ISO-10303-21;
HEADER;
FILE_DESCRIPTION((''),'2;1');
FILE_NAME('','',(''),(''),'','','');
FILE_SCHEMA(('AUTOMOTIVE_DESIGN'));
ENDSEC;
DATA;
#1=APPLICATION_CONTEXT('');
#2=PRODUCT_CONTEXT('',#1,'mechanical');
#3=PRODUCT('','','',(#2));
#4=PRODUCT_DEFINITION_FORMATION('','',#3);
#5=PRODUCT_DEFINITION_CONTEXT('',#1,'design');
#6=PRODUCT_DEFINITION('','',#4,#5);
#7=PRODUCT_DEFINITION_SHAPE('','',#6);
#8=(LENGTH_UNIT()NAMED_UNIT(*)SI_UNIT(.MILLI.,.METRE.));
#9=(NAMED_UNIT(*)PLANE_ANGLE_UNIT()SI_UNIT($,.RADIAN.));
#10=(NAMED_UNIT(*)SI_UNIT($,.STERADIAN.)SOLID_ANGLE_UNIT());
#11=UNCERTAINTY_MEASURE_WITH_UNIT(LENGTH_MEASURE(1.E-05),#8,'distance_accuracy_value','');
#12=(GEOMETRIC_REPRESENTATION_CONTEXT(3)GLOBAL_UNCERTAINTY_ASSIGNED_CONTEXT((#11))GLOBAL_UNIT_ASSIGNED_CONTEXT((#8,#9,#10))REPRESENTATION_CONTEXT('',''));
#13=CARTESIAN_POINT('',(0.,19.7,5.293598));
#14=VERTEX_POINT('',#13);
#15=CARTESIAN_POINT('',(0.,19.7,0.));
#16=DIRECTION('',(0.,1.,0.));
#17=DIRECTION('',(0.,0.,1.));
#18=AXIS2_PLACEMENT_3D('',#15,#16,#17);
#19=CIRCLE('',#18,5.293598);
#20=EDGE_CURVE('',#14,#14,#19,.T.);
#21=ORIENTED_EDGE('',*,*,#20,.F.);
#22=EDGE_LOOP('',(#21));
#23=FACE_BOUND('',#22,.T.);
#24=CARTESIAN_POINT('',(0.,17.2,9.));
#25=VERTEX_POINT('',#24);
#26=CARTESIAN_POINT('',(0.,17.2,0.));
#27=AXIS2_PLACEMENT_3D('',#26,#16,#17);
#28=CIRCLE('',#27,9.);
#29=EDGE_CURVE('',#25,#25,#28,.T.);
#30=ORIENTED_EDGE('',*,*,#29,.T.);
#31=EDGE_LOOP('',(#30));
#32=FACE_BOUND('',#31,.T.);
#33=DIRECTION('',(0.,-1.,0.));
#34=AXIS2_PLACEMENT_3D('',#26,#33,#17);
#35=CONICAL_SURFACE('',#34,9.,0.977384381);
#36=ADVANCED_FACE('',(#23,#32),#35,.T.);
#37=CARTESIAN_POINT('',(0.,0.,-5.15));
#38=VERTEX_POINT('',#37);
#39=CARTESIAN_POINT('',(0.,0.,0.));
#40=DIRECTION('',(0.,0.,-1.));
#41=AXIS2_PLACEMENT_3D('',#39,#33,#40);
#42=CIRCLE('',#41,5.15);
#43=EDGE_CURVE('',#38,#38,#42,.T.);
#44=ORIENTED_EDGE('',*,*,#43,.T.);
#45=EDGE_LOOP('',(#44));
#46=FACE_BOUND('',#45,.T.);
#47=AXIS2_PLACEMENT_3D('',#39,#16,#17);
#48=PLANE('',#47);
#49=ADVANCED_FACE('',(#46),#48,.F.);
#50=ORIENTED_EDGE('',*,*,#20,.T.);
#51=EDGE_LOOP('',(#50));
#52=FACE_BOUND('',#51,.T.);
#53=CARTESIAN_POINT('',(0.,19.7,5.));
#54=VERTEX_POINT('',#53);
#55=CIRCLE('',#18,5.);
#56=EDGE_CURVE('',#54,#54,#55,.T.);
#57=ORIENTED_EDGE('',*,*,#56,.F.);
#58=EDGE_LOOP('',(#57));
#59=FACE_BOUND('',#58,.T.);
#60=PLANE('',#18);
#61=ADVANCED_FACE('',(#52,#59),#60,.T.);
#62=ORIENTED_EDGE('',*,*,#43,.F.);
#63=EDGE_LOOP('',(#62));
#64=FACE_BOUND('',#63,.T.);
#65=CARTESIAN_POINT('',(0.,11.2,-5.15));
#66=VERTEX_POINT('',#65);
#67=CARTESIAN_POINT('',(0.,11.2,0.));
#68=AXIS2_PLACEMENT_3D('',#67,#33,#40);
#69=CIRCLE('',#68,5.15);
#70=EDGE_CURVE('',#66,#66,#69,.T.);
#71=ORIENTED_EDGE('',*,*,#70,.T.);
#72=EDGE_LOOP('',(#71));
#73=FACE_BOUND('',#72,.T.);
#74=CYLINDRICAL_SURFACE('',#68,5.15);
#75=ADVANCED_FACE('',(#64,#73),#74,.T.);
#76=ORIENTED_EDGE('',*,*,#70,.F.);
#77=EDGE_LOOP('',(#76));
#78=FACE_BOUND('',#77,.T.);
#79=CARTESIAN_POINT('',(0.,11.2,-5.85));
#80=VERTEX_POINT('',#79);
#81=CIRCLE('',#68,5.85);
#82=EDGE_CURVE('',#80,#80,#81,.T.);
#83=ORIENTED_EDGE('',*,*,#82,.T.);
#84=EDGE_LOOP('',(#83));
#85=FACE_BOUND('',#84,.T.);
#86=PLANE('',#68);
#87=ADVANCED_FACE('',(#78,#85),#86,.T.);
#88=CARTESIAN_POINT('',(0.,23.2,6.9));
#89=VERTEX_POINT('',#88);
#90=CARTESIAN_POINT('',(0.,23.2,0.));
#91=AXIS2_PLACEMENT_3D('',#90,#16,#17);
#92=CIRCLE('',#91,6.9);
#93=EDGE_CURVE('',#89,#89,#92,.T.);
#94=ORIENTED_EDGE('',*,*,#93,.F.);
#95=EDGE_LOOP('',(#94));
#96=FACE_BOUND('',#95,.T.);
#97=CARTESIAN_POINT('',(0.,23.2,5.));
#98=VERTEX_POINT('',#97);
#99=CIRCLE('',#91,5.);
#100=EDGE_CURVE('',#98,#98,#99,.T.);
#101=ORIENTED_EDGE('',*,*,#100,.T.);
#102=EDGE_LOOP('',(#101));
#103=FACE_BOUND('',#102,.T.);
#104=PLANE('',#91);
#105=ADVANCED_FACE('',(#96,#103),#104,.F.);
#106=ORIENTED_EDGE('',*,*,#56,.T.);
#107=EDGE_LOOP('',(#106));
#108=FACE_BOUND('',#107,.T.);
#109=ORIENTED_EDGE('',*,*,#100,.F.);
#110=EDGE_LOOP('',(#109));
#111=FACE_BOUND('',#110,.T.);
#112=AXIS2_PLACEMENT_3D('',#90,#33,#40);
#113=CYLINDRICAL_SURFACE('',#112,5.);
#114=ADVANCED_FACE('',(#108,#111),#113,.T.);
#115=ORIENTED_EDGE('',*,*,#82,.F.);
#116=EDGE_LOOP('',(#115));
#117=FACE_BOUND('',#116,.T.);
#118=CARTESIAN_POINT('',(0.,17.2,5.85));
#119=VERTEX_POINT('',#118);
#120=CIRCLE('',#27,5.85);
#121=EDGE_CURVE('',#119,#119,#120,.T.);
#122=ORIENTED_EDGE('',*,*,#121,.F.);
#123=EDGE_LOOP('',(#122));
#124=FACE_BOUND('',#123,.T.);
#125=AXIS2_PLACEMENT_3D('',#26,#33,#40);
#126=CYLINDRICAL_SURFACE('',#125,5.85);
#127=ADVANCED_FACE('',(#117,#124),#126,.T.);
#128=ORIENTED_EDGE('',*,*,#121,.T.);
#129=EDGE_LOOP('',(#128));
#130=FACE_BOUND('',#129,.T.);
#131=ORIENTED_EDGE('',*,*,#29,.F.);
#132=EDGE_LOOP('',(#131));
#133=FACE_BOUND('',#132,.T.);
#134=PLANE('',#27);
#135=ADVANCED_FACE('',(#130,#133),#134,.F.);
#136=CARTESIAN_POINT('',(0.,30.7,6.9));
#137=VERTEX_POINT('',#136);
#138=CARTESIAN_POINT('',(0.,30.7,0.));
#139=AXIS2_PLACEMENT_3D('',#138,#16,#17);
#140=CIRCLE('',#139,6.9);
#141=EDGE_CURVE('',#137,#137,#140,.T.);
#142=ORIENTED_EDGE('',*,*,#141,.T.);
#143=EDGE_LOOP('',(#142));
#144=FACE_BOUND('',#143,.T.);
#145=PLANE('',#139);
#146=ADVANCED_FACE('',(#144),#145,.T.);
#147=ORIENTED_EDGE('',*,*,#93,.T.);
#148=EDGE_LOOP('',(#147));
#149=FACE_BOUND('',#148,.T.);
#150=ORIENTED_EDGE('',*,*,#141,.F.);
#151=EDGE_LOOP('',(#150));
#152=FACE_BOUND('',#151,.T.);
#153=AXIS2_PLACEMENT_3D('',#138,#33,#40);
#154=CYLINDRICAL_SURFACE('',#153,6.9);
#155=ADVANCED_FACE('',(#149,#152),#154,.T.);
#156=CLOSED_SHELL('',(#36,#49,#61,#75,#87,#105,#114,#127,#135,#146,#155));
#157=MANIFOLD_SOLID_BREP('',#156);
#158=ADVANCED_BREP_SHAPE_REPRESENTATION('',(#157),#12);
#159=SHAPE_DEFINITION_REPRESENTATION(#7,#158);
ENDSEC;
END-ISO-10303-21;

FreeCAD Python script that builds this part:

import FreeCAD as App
import Part
import Sketcher
from FreeCAD import Vector
Q = App.Units.Quantity

doc = App.newDocument("Part")
body = doc.addObject("PartDesign::Body", "Body")

sketch1 = body.newObject("Sketcher::SketchObject", "Sketch")
sketch1.AttachmentSupport = (doc.getObject("XZ_Plane"), [""])
sketch1.MapMode = "FlatFace"
sketch1.addGeometry(Part.Circle(Vector(0, 0, 0), Vector(0, 0, 1), 5.85), False)
sketch1.addConstraint(Sketcher.Constraint("Coincident", 0, 3, -1, 1))
sketch1.addConstraint(Sketcher.Constraint("Diameter", 0, Q("11.7 mm")))
pad1 = body.newObject("PartDesign::Pad", "Pad")
pad1.Profile = sketch1
pad1.Length = 17.2
pad1.Reversed = True

sketch2 = body.newObject("Sketcher::SketchObject", "Sketch001")
sketch2.AttachmentSupport = (doc.getObject("XZ_Plane"), [""])
sketch2.MapMode = "FlatFace"
sketch2.AttachmentOffset = App.Placement(Vector(0, 0, -17.2), App.Rotation())
sketch2.addGeometry(Part.Circle(Vector(0, 0, 0), Vector(0, 0, 1), 9), False)
sketch2.addConstraint(Sketcher.Constraint("Coincident", 0, 3, -1, 1))
sketch2.addConstraint(Sketcher.Constraint("Diameter", 0, Q("18 mm")))
pad2 = body.newObject("PartDesign::Pad", "Pad001")
pad2.Profile = sketch2
pad2.Length = 2.5
pad2.Reversed = True
pad2.TaperAngle = -56

sketch3 = body.newObject("Sketcher::SketchObject", "Sketch002")
sketch3.AttachmentSupport = (doc.getObject("XZ_Plane"), [""])
sketch3.MapMode = "FlatFace"
sketch3.AttachmentOffset = App.Placement(Vector(0, 0, -19.7), App.Rotation())
sketch3.addGeometry(Part.Circle(Vector(0, 0, 0), Vector(0, 0, 1), 5), False)
sketch3.addConstraint(Sketcher.Constraint("Coincident", 0, 3, -1, 1))
sketch3.addConstraint(Sketcher.Constraint("Diameter", 0, Q("10 mm")))
pad3 = body.newObject("PartDesign::Pad", "Pad002")
pad3.Profile = sketch3
pad3.Length = 3.5
pad3.Reversed = True

sketch4 = body.newObject("Sketcher::SketchObject", "Sketch003")
sketch4.AttachmentSupport = (doc.getObject("XZ_Plane"), [""])
sketch4.MapMode = "FlatFace"
sketch4.AttachmentOffset = App.Placement(Vector(0, 0, -23.2), App.Rotation())
sketch4.addGeometry(Part.Circle(Vector(0, 0, 0), Vector(0, 0, 1), 6.9), False)
sketch4.addConstraint(Sketcher.Constraint("Coincident", 0, 3, -1, 1))
sketch4.addConstraint(Sketcher.Constraint("Diameter", 0, Q("13.8 mm")))
pad4 = body.newObject("PartDesign::Pad", "Pad003")
pad4.Profile = sketch4
pad4.Length = 7.5
pad4.Reversed = True

sketch5 = body.newObject("Sketcher::SketchObject", "Sketch004")
sketch5.AttachmentSupport = (doc.getObject("XZ_Plane"), [""])
sketch5.MapMode = "FlatFace"
sketch5.addGeometry(Part.LineSegment(Vector(-13.988, 13.988, 0), Vector(-13.988, -13.988, 0)), False)
sketch5.addGeometry(Part.LineSegment(Vector(-13.988, -13.988, 0), Vector(13.988, -13.988, 0)), False)
sketch5.addGeometry(Part.LineSegment(Vector(13.988, -13.988, 0), Vector(13.988, 13.988, 0)), False)
sketch5.addGeometry(Part.LineSegment(Vector(13.988, 13.988, 0), Vector(-13.988, 13.988, 0)), False)
sketch5.addGeometry(Part.Circle(Vector(0, 0, 0), Vector(0, 0, 1), 5.15), False)
sketch5.addConstraint(Sketcher.Constraint("Coincident", 0, 2, 1, 1))
sketch5.addConstraint(Sketcher.Constraint("Coincident", 1, 2, 2, 1))
sketch5.addConstraint(Sketcher.Constraint("Coincident", 2, 2, 3, 1))
sketch5.addConstraint(Sketcher.Constraint("Coincident", 3, 2, 0, 1))
sketch5.addConstraint(Sketcher.Constraint("Vertical", 0))
sketch5.addConstraint(Sketcher.Constraint("Horizontal", 1))
sketch5.addConstraint(Sketcher.Constraint("Vertical", 2))
sketch5.addConstraint(Sketcher.Constraint("Horizontal", 3))
sketch5.addConstraint(Sketcher.Constraint("Coincident", 4, 3, -1, 1))
sketch5.addConstraint(Sketcher.Constraint("Symmetric", 0, 2, 2, 2, -1, 1))
sketch5.addConstraint(Sketcher.Constraint("Equal", 3, 0))
sketch5.addConstraint(Sketcher.Constraint("Diameter", 4, Q("10.3 mm")))
sketch5.addConstraint(Sketcher.Constraint("DistanceX", 1, 1, 1, 2, Q("27.976 mm")))
pocket1 = body.newObject("PartDesign::Pocket", "Pocket")
pocket1.Profile = sketch5
pocket1.Length = 11.2

doc.recompute()
